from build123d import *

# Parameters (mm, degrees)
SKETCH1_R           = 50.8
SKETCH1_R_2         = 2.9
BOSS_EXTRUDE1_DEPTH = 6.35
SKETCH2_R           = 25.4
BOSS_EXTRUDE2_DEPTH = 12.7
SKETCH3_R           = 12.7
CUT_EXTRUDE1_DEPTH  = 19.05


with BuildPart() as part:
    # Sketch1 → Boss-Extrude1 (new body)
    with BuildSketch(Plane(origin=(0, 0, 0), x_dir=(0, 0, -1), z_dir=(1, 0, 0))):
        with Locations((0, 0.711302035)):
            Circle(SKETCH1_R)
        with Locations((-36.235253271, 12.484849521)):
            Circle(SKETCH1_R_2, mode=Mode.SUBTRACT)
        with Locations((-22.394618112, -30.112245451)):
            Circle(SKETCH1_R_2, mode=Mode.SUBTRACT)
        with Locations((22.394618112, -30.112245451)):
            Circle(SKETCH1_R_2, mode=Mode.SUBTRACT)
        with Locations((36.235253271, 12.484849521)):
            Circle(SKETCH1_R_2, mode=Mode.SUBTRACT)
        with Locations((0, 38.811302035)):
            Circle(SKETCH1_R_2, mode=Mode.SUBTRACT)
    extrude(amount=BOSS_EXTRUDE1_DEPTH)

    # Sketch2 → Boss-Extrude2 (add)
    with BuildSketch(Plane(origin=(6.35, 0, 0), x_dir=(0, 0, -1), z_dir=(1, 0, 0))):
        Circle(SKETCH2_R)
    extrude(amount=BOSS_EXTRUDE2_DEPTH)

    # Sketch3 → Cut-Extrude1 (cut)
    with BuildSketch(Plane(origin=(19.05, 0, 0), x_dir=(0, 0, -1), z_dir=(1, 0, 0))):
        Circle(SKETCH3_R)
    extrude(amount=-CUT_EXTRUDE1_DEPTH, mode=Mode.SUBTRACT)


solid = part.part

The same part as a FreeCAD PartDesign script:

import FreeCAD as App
import Part
import Sketcher
Q = App.Units.Quantity

doc = App.newDocument("Part")
body = doc.addObject("PartDesign::Body", "Body")

# Sketch on YZ plane
sketch1 = body.newObject("Sketcher::SketchObject", "Sketch")
sketch1.AttachmentSupport = (doc.getObject("YZ_Plane"), [""])
sketch1.MapMode = "FlatFace"
sketch1.addGeometry([
    Part.Circle(App.Vector(0.711302, 0, 0), App.Vector(0, 0, 1), 50.8),  # 0
    Part.Circle(App.Vector(-30.112245, 22.394618, 0), App.Vector(0, 0, 1), 2.9),  # 1
    Part.Circle(App.Vector(-30.112245, -22.394618, 0), App.Vector(0, 0, 1), 2.9),  # 2
    Part.Circle(App.Vector(12.48485, 36.235253, 0), App.Vector(0, 0, 1), 2.9),  # 3
    Part.Circle(App.Vector(12.48485, -36.235253, 0), App.Vector(0, 0, 1), 2.9),  # 4
    Part.Circle(App.Vector(38.811302, 0, 0), App.Vector(0, 0, 1), 2.9),  # 5
], False)
sketch1.addConstraint([
    Sketcher.Constraint("Equal", 1, 2),
    Sketcher.Constraint("Equal", 2, 3),
    Sketcher.Constraint("Equal", 3, 4),
    Sketcher.Constraint("Equal", 4, 5),
    Sketcher.Constraint("Symmetric", 1, 3, 2, 3, -1),
    Sketcher.Constraint("Symmetric", 3, 3, 4, 3, -1),
    Sketcher.Constraint("PointOnObject", 0, 3, -1),
    Sketcher.Constraint("PointOnObject", 5, 3, -1),
    Sketcher.Constraint("Diameter", 0, Q("4 in")),
    Sketcher.Constraint("DistanceX", 0, 3, 5, 3, Q("1.5 in")),
    Sketcher.Constraint("Diameter", 1, 5.8),
    Sketcher.Constraint("DistanceY", -1, 1, 1, 3, 22.394618),
    Sketcher.Constraint("DistanceX", -1, 1, 3, 3, 12.48485),
    Sketcher.Constraint("DistanceY", 2, 3, 3, 3, 58.629871),
    Sketcher.Constraint("DistanceX", -1, 1, 0, 3, 0.711302),
    Sketcher.Constraint("DistanceX", 1, 3, -1, 1, 30.112245),
])
pad1 = body.newObject("PartDesign::Pad", "Pad")
pad1.Profile = sketch1
pad1.Length = Q("0.25 in")

# Sketch on YZ plane
sketch2 = body.newObject("Sketcher::SketchObject", "Sketch001")
sketch2.AttachmentSupport = (doc.getObject("YZ_Plane"), [""])
sketch2.MapMode = "FlatFace"
sketch2.AttachmentOffset = App.Placement(App.Vector(0, 0, 0.25 * 25.4), App.Rotation())
sketch2.addGeometry(Part.Circle(App.Vector(0, 0, 0), App.Vector(0, 0, 1), 25.4), False)
sketch2.addConstraint([
    Sketcher.Constraint("Coincident", 0, 3, -1, 1),
    Sketcher.Constraint("Diameter", 0, Q("2 in")),
])
pad2 = body.newObject("PartDesign::Pad", "Pad001")
pad2.Profile = sketch2
pad2.Length = Q("0.5 in")

# Sketch on YZ plane
sketch3 = body.newObject("Sketcher::SketchObject", "Sketch002")
sketch3.AttachmentSupport = (doc.getObject("YZ_Plane"), [""])
sketch3.MapMode = "FlatFace"
sketch3.AttachmentOffset = App.Placement(App.Vector(0, 0, 0.75 * 25.4), App.Rotation())
sketch3.addGeometry(Part.Circle(App.Vector(0, 0, 0), App.Vector(0, 0, 1), 12.7), False)
sketch3.addConstraint([
    Sketcher.Constraint("Coincident", 0, 3, -1, 1),
    Sketcher.Constraint("Diameter", 0, Q("1 in")),
])
pocket1 = body.newObject("PartDesign::Pocket", "Pocket")
pocket1.Profile = sketch3
pocket1.Length = Q("0.75 in")

doc.recompute()
